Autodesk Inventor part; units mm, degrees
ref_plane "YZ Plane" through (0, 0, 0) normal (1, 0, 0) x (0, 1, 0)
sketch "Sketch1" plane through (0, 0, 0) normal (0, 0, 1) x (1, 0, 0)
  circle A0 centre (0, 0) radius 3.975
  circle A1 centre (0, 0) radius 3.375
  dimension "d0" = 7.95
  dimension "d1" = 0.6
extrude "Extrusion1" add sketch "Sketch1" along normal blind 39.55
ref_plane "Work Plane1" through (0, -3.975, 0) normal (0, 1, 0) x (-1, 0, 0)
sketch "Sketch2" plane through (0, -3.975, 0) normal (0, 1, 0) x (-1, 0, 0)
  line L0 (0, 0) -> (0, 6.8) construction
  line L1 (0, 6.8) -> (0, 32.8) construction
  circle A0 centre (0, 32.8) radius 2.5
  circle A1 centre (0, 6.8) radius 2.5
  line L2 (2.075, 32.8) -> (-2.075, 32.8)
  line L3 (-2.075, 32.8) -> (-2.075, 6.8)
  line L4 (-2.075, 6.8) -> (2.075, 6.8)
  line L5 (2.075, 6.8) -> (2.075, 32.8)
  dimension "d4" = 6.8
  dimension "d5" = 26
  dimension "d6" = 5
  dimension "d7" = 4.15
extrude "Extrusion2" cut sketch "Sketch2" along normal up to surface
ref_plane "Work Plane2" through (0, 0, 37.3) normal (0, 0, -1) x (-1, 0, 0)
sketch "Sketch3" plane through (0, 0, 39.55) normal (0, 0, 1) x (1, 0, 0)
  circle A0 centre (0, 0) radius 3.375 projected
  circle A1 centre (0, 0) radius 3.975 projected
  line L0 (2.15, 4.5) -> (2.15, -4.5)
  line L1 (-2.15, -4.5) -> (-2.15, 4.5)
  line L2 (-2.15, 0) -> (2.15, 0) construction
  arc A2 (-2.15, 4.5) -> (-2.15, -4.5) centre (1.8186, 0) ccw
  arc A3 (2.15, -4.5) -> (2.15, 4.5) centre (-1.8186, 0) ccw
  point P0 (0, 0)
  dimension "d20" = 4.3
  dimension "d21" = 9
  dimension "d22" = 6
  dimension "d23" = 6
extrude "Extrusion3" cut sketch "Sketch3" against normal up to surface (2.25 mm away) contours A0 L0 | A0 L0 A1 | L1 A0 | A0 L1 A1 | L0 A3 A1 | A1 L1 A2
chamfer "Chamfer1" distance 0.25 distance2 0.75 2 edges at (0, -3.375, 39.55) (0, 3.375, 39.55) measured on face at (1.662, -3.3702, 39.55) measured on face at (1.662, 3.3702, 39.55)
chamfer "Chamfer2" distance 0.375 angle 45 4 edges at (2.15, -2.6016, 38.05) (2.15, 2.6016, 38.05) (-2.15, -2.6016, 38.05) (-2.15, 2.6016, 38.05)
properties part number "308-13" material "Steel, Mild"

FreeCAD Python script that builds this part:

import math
import FreeCAD as App
import Part
import Sketcher

V = App.Vector


def edges_at(feature, points):
    """Names of the edges that pass closest to the given points."""
    edges = feature.Shape.Edges
    near = lambda p: min(range(len(edges)), key=lambda i: edges[i].distToShape(Part.Vertex(*p))[0])
    return sorted({f"Edge{near(p) + 1}" for p in points})

doc = App.newDocument("Part")
body = doc.addObject("PartDesign::Body", "Body")

sketch1 = body.newObject("Sketcher::SketchObject", "Sketch")
sketch1.AttachmentSupport = (doc.getObject("XY_Plane"), [""])
sketch1.MapMode = "FlatFace"
sketch1.addGeometry([
    Part.Circle(V(0, 0, 0), V(0, 0, 1), 4),
    Part.Circle(V(0, 0, 0), V(0, 0, 1), 3.4),
], False)
sketch1.addConstraint([
    Sketcher.Constraint("Coincident", 0, 3, -1, 1),
    Sketcher.Constraint("Coincident", 1, 3, -1, 1),
    Sketcher.Constraint("Diameter", 0, 7.95),
    Sketcher.Constraint("Diameter", 1, 6.75),
])
pad1 = body.newObject("PartDesign::Pad", "Pad")
pad1.Profile = sketch1
pad1.Length = 39.55

sketch2 = body.newObject("Sketcher::SketchObject", "Sketch001")
sketch2.AttachmentSupport = (doc.getObject("XZ_Plane"), [""])
sketch2.MapMode = "FlatFace"
sketch2.AttachmentOffset = App.Placement(V(0, 0, 3.975), App.Rotation())
sketch2.addGeometry([
    Part.ArcOfCircle(Part.Circle(V(0, 32.8, 0), V(0, 0, 1), 2.5), math.radians(-34), math.radians(214)),
    Part.LineSegment(V(2.1, 31.4, 0), V(2.1, 8.2, 0)),
    Part.ArcOfCircle(Part.Circle(V(0, 6.8, 0), V(0, 0, 1), 2.5), math.radians(146), math.radians(394)),
    Part.LineSegment(V(-2.1, 8.2, 0), V(-2.1, 31.4, 0)),
], False)
sketch2.addConstraint([
    Sketcher.Constraint("Coincident", 0, 1, 1, 1),
    Sketcher.Constraint("Coincident", 1, 2, 2, 2),
    Sketcher.Constraint("Coincident", 2, 1, 3, 1),
    Sketcher.Constraint("Coincident", 3, 2, 0, 2),
    Sketcher.Constraint("Vertical", 1),
    Sketcher.Constraint("Vertical", 3),
    Sketcher.Constraint("Equal", 0, 2),
    Sketcher.Constraint("Symmetric", 1, 2, 2, 1, -2),
    Sketcher.Constraint("PointOnObject", 0, 3, -2),
    Sketcher.Constraint("Radius", 0, 2.5),
    Sketcher.Constraint("DistanceY", 2, 3, 0, 3, 26.0),
    Sketcher.Constraint("DistanceY", -1, 1, 2, 3, 6.8),
    Sketcher.Constraint("DistanceX", 2, 1, 1, 2, 4.15),
])
pocket1 = body.newObject("PartDesign::Pocket", "Pocket")
pocket1.Profile = sketch2
pocket1.Length = 1.7077

sketch3 = body.newObject("Sketcher::SketchObject", "Sketch002")
sketch3.AttachmentSupport = (doc.getObject("XY_Plane"), [""])
sketch3.MapMode = "FlatFace"
sketch3.AttachmentOffset = App.Placement(V(0, 0, 39.55), App.Rotation())
sketch3.addGeometry([
    Part.ArcOfCircle(Part.Circle(V(-2, 0, 0), V(0, 0, 1), 6), math.radians(-49), math.radians(49)),
    Part.LineSegment(V(2, 4, 0), V(2, -4, 0)),
    Part.ArcOfCircle(Part.Circle(V(2, 0, 0), V(0, 0, 1), 6), math.radians(131), math.radians(229)),
    Part.LineSegment(V(-2, -4, 0), V(-2, 4, 0)),
], False)
sketch3.addConstraint([
    Sketcher.Constraint("Coincident", 0, 1, 1, 2),
    Sketcher.Constraint("Coincident", 1, 1, 0, 2),
    Sketcher.Constraint("Coincident", 2, 1, 3, 2),
    Sketcher.Constraint("Coincident", 3, 1, 2, 2),
    Sketcher.Constraint("Vertical", 1),
    Sketcher.Constraint("Vertical", 3),
    Sketcher.Constraint("Equal", 0, 2),
    Sketcher.Constraint("Symmetric", 0, 3, 2, 3, -1, 1),
    Sketcher.Constraint("Symmetric", 1, 1, 2, 1, -2),
    Sketcher.Constraint("Radius", 0, 6.0),
    Sketcher.Constraint("DistanceY", 1, 2, 1, 1, 9.0),
    Sketcher.Constraint("DistanceX", 2, 1, 1, 1, 4.3),
])
pocket2 = body.newObject("PartDesign::Pocket", "Pocket001")
pocket2.Profile = sketch3
pocket2.Length = 2.25
doc.recompute()

chamfer = body.newObject("PartDesign::Chamfer", "Chamfer")
chamfer.Base = (pocket2, edges_at(pocket2, [(0, -3.375, 39.55), (0, 3.375, 39.55)]))
chamfer.ChamferType = "Two distances"
chamfer.Size = 0.25
chamfer.Size2 = 0.75
doc.recompute()

chamfer2 = body.newObject("PartDesign::Chamfer", "Chamfer001")
chamfer2.Base = (chamfer, edges_at(chamfer, [
    (2.15, -2.602, 38.05),
    (2.15, 2.602, 38.05),
    (-2.15, -2.602, 38.05),
    (-2.15, 2.602, 38.05),
]))
chamfer2.Size = 0.375

doc.recompute()
